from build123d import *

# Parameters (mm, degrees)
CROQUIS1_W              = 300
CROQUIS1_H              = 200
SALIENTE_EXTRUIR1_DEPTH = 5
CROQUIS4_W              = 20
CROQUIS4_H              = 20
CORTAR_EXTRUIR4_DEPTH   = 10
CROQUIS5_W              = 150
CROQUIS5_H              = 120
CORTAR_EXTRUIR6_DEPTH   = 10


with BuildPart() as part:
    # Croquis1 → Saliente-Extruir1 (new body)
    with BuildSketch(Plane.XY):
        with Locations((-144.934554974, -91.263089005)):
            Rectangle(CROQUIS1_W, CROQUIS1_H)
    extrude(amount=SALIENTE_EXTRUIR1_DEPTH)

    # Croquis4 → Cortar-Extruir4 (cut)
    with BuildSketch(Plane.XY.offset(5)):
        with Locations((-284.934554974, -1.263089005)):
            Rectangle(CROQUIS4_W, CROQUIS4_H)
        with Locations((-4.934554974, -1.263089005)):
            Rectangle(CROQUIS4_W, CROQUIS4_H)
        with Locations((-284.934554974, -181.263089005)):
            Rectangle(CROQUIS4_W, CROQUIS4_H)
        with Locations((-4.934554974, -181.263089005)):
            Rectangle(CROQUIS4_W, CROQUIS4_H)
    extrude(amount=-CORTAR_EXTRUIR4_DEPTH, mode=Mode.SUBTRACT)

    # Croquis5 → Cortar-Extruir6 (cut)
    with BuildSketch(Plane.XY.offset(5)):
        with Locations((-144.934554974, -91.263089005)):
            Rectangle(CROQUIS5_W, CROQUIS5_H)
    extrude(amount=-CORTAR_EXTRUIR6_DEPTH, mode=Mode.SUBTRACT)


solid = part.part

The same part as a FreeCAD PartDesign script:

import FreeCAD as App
import Part
import Sketcher

doc = App.newDocument("Part")
params = doc.addObject("Spreadsheet::Sheet", "Params")
for row, (alias, value) in enumerate([
    ("sketch1_width", "300 mm"),
    ("sketch1_height", "200 mm"),
    ("pad1_length", "5 mm"),
    ("sketch2_width", "20 mm"),
    ("pocket1_length", "10 mm"),
    ("sketch3_width", "150 mm"),
    ("sketch3_height", "120 mm"),
    ("pocket2_length", "10 mm"),
], start=1):
    params.set(f"A{row}", alias)
    params.set(f"B{row}", "=" + value)
    params.setAlias(f"B{row}", alias)

body = doc.addObject("PartDesign::Body", "Body")

sketch1 = doc.addObject("Sketcher::SketchObject", "Sketch")
body.addObject(sketch1)
sketch1.AttachmentSupport = (doc.XY_Plane, [""])
sketch1.MapMode = "FlatFace"
sketch1.addGeometry([
    Part.LineSegment(App.Vector(-294.934555, 8.736911, 0), App.Vector(-294.934555, -191.263089, 0)),
    Part.LineSegment(App.Vector(-294.934555, -191.263089, 0), App.Vector(5.065445, -191.263089, 0)),
    Part.LineSegment(App.Vector(5.065445, -191.263089, 0), App.Vector(5.065445, 8.736911, 0)),
    Part.LineSegment(App.Vector(5.065445, 8.736911, 0), App.Vector(-294.934555, 8.736911, 0)),
], False)
sketch1.addConstraint([
    Sketcher.Constraint("Coincident", 0, 2, 1, 1),
    Sketcher.Constraint("Coincident", 1, 2, 2, 1),
    Sketcher.Constraint("Coincident", 2, 2, 3, 1),
    Sketcher.Constraint("Coincident", 3, 2, 0, 1),
    Sketcher.Constraint("Vertical", 0),
    Sketcher.Constraint("Horizontal", 1),
    Sketcher.Constraint("Vertical", 2),
    Sketcher.Constraint("Horizontal", 3),
    Sketcher.Constraint("DistanceX", 1, 1, 1, 2, 300.0),
    Sketcher.Constraint("DistanceY", 0, 2, 0, 1, 200.0),
    Sketcher.Constraint("DistanceY", 0, 2, -1, 1, 191.263089),
    Sketcher.Constraint("DistanceX", 0, 2, -1, 1, 294.934555),
])
sketch1.setExpression("Constraints[8]", "Params.sketch1_width")
sketch1.setExpression("Constraints[9]", "Params.sketch1_height")
pad1 = doc.addObject("PartDesign::Pad", "Pad")
body.addObject(pad1)
pad1.Profile = sketch1
pad1.setExpression("Length", "Params.pad1_length")

sketch2 = doc.addObject("Sketcher::SketchObject", "Sketch001")
body.addObject(sketch2)
sketch2.AttachmentSupport = (doc.XY_Plane, [""])
sketch2.MapMode = "FlatFace"
sketch2.AttachmentOffset = App.Placement(App.Vector(0, 0, 5), App.Rotation())
sketch2.addGeometry([
    Part.LineSegment(App.Vector(-294.934555, 8.736911, 0), App.Vector(-294.934555, -11.263089, 0)),
    Part.LineSegment(App.Vector(-294.934555, -11.263089, 0), App.Vector(-274.934555, -11.263089, 0)),
    Part.LineSegment(App.Vector(-274.934555, -11.263089, 0), App.Vector(-274.934555, 8.736911, 0)),
    Part.LineSegment(App.Vector(-274.934555, 8.736911, 0), App.Vector(-294.934555, 8.736911, 0)),
    Part.LineSegment(App.Vector(-14.934555, 8.736911, 0), App.Vector(-14.934555, -11.263089, 0)),
    Part.LineSegment(App.Vector(-14.934555, -11.263089, 0), App.Vector(5.065445, -11.263089, 0)),
    Part.LineSegment(App.Vector(5.065445, -11.263089, 0), App.Vector(5.065445, 8.736911, 0)),
    Part.LineSegment(App.Vector(5.065445, 8.736911, 0), App.Vector(-14.934555, 8.736911, 0)),
    Part.LineSegment(App.Vector(-294.934555, -171.263089, 0), App.Vector(-294.934555, -191.263089, 0)),
    Part.LineSegment(App.Vector(-294.934555, -191.263089, 0), App.Vector(-274.934555, -191.263089, 0)),
    Part.LineSegment(App.Vector(-274.934555, -191.263089, 0), App.Vector(-274.934555, -171.263089, 0)),
    Part.LineSegment(App.Vector(-274.934555, -171.263089, 0), App.Vector(-294.934555, -171.263089, 0)),
    Part.LineSegment(App.Vector(-14.934555, -171.263089, 0), App.Vector(-14.934555, -191.263089, 0)),
    Part.LineSegment(App.Vector(-14.934555, -191.263089, 0), App.Vector(5.065445, -191.263089, 0)),
    Part.LineSegment(App.Vector(5.065445, -191.263089, 0), App.Vector(5.065445, -171.263089, 0)),
    Part.LineSegment(App.Vector(5.065445, -171.263089, 0), App.Vector(-14.934555, -171.263089, 0)),
], False)
sketch2.addConstraint([
    Sketcher.Constraint("Coincident", 0, 2, 1, 1),
    Sketcher.Constraint("Coincident", 1, 2, 2, 1),
    Sketcher.Constraint("Coincident", 2, 2, 3, 1),
    Sketcher.Constraint("Coincident", 3, 2, 0, 1),
    Sketcher.Constraint("Coincident", 4, 2, 5, 1),
    Sketcher.Constraint("Coincident", 5, 2, 6, 1),
    Sketcher.Constraint("Coincident", 6, 2, 7, 1),
    Sketcher.Constraint("Coincident", 7, 2, 4, 1),
    Sketcher.Constraint("Coincident", 8, 2, 9, 1),
    Sketcher.Constraint("Coincident", 9, 2, 10, 1),
    Sketcher.Constraint("Coincident", 10, 2, 11, 1),
    Sketcher.Constraint("Coincident", 11, 2, 8, 1),
    Sketcher.Constraint("Coincident", 12, 2, 13, 1),
    Sketcher.Constraint("Coincident", 13, 2, 14, 1),
    Sketcher.Constraint("Coincident", 14, 2, 15, 1),
    Sketcher.Constraint("Coincident", 15, 2, 12, 1),
    Sketcher.Constraint("Vertical", 0),
    Sketcher.Constraint("Horizontal", 1),
    Sketcher.Constraint("Vertical", 2),
    Sketcher.Constraint("Horizontal", 3),
    Sketcher.Constraint("Vertical", 4),
    Sketcher.Constraint("Horizontal", 5),
    Sketcher.Constraint("Vertical", 6),
    Sketcher.Constraint("Horizontal", 7),
    Sketcher.Constraint("Vertical", 8),
    Sketcher.Constraint("Horizontal", 9),
    Sketcher.Constraint("Vertical", 10),
    Sketcher.Constraint("Horizontal", 11),
    Sketcher.Constraint("Vertical", 12),
    Sketcher.Constraint("Horizontal", 13),
    Sketcher.Constraint("Vertical", 14),
    Sketcher.Constraint("Horizontal", 15),
    Sketcher.Constraint("Horizontal", 1, 2, 4, 2),
    Sketcher.Constraint("Horizontal", 3, 2, 6, 2),
    Sketcher.Constraint("Horizontal", 9, 2, 12, 2),
    Sketcher.Constraint("Horizontal", 11, 2, 14, 2),
    Sketcher.Constraint("Vertical", 3, 2, 8, 2),
    Sketcher.Constraint("Vertical", 2, 2, 9, 2),
    Sketcher.Constraint("Vertical", 7, 2, 12, 2),
    Sketcher.Constraint("Vertical", 6, 2, 13, 2),
    Sketcher.Constraint("Equal", 3, 5),
    Sketcher.Constraint("Equal", 15, 0),
    Sketcher.Constraint("Equal", 6, 8),
    Sketcher.Constraint("DistanceX", 1, 1, 1, 2, 20.0),
    Sketcher.Constraint("DistanceX", 1, 2, 4, 2, 260.0),
    Sketcher.Constraint("DistanceY", 8, 2, 0, 2, 180.0),
    Sketcher.Constraint("DistanceY", 0, 2, -1, 1, 11.263089),
    Sketcher.Constraint("DistanceX", 0, 2, -1, 1, 294.934555),
])
sketch2.setExpression("Constraints[43]", "Params.sketch2_width")
pocket1 = doc.addObject("PartDesign::Pocket", "Pocket")
body.addObject(pocket1)
pocket1.Profile = sketch2
pocket1.setExpression("Length", "Params.pocket1_length")

sketch3 = doc.addObject("Sketcher::SketchObject", "Sketch002")
body.addObject(sketch3)
sketch3.AttachmentSupport = (doc.XY_Plane, [""])
sketch3.MapMode = "FlatFace"
sketch3.AttachmentOffset = App.Placement(App.Vector(0, 0, 5), App.Rotation())
sketch3.addGeometry([
    Part.LineSegment(App.Vector(-219.934555, -31.263089, 0), App.Vector(-219.934555, -151.263089, 0)),
    Part.LineSegment(App.Vector(-219.934555, -151.263089, 0), App.Vector(-69.934555, -151.263089, 0)),
    Part.LineSegment(App.Vector(-69.934555, -151.263089, 0), App.Vector(-69.934555, -31.263089, 0)),
    Part.LineSegment(App.Vector(-69.934555, -31.263089, 0), App.Vector(-219.934555, -31.263089, 0)),
], False)
sketch3.addConstraint([
    Sketcher.Constraint("Coincident", 0, 2, 1, 1),
    Sketcher.Constraint("Coincident", 1, 2, 2, 1),
    Sketcher.Constraint("Coincident", 2, 2, 3, 1),
    Sketcher.Constraint("Coincident", 3, 2, 0, 1),
    Sketcher.Constraint("Vertical", 0),
    Sketcher.Constraint("Horizontal", 1),
    Sketcher.Constraint("Vertical", 2),
    Sketcher.Constraint("Horizontal", 3),
    Sketcher.Constraint("DistanceX", 1, 1, 1, 2, 150.0),
    Sketcher.Constraint("DistanceY", 0, 2, 0, 1, 120.0),
    Sketcher.Constraint("DistanceY", 0, 2, -1, 1, 151.263089),
    Sketcher.Constraint("DistanceX", 0, 2, -1, 1, 219.934555),
])
sketch3.setExpression("Constraints[8]", "Params.sketch3_width")
sketch3.setExpression("Constraints[9]", "Params.sketch3_height")
pocket2 = doc.addObject("PartDesign::Pocket", "Pocket001")
body.addObject(pocket2)
pocket2.Profile = sketch3
pocket2.setExpression("Length", "Params.pocket2_length")

doc.recompute()
